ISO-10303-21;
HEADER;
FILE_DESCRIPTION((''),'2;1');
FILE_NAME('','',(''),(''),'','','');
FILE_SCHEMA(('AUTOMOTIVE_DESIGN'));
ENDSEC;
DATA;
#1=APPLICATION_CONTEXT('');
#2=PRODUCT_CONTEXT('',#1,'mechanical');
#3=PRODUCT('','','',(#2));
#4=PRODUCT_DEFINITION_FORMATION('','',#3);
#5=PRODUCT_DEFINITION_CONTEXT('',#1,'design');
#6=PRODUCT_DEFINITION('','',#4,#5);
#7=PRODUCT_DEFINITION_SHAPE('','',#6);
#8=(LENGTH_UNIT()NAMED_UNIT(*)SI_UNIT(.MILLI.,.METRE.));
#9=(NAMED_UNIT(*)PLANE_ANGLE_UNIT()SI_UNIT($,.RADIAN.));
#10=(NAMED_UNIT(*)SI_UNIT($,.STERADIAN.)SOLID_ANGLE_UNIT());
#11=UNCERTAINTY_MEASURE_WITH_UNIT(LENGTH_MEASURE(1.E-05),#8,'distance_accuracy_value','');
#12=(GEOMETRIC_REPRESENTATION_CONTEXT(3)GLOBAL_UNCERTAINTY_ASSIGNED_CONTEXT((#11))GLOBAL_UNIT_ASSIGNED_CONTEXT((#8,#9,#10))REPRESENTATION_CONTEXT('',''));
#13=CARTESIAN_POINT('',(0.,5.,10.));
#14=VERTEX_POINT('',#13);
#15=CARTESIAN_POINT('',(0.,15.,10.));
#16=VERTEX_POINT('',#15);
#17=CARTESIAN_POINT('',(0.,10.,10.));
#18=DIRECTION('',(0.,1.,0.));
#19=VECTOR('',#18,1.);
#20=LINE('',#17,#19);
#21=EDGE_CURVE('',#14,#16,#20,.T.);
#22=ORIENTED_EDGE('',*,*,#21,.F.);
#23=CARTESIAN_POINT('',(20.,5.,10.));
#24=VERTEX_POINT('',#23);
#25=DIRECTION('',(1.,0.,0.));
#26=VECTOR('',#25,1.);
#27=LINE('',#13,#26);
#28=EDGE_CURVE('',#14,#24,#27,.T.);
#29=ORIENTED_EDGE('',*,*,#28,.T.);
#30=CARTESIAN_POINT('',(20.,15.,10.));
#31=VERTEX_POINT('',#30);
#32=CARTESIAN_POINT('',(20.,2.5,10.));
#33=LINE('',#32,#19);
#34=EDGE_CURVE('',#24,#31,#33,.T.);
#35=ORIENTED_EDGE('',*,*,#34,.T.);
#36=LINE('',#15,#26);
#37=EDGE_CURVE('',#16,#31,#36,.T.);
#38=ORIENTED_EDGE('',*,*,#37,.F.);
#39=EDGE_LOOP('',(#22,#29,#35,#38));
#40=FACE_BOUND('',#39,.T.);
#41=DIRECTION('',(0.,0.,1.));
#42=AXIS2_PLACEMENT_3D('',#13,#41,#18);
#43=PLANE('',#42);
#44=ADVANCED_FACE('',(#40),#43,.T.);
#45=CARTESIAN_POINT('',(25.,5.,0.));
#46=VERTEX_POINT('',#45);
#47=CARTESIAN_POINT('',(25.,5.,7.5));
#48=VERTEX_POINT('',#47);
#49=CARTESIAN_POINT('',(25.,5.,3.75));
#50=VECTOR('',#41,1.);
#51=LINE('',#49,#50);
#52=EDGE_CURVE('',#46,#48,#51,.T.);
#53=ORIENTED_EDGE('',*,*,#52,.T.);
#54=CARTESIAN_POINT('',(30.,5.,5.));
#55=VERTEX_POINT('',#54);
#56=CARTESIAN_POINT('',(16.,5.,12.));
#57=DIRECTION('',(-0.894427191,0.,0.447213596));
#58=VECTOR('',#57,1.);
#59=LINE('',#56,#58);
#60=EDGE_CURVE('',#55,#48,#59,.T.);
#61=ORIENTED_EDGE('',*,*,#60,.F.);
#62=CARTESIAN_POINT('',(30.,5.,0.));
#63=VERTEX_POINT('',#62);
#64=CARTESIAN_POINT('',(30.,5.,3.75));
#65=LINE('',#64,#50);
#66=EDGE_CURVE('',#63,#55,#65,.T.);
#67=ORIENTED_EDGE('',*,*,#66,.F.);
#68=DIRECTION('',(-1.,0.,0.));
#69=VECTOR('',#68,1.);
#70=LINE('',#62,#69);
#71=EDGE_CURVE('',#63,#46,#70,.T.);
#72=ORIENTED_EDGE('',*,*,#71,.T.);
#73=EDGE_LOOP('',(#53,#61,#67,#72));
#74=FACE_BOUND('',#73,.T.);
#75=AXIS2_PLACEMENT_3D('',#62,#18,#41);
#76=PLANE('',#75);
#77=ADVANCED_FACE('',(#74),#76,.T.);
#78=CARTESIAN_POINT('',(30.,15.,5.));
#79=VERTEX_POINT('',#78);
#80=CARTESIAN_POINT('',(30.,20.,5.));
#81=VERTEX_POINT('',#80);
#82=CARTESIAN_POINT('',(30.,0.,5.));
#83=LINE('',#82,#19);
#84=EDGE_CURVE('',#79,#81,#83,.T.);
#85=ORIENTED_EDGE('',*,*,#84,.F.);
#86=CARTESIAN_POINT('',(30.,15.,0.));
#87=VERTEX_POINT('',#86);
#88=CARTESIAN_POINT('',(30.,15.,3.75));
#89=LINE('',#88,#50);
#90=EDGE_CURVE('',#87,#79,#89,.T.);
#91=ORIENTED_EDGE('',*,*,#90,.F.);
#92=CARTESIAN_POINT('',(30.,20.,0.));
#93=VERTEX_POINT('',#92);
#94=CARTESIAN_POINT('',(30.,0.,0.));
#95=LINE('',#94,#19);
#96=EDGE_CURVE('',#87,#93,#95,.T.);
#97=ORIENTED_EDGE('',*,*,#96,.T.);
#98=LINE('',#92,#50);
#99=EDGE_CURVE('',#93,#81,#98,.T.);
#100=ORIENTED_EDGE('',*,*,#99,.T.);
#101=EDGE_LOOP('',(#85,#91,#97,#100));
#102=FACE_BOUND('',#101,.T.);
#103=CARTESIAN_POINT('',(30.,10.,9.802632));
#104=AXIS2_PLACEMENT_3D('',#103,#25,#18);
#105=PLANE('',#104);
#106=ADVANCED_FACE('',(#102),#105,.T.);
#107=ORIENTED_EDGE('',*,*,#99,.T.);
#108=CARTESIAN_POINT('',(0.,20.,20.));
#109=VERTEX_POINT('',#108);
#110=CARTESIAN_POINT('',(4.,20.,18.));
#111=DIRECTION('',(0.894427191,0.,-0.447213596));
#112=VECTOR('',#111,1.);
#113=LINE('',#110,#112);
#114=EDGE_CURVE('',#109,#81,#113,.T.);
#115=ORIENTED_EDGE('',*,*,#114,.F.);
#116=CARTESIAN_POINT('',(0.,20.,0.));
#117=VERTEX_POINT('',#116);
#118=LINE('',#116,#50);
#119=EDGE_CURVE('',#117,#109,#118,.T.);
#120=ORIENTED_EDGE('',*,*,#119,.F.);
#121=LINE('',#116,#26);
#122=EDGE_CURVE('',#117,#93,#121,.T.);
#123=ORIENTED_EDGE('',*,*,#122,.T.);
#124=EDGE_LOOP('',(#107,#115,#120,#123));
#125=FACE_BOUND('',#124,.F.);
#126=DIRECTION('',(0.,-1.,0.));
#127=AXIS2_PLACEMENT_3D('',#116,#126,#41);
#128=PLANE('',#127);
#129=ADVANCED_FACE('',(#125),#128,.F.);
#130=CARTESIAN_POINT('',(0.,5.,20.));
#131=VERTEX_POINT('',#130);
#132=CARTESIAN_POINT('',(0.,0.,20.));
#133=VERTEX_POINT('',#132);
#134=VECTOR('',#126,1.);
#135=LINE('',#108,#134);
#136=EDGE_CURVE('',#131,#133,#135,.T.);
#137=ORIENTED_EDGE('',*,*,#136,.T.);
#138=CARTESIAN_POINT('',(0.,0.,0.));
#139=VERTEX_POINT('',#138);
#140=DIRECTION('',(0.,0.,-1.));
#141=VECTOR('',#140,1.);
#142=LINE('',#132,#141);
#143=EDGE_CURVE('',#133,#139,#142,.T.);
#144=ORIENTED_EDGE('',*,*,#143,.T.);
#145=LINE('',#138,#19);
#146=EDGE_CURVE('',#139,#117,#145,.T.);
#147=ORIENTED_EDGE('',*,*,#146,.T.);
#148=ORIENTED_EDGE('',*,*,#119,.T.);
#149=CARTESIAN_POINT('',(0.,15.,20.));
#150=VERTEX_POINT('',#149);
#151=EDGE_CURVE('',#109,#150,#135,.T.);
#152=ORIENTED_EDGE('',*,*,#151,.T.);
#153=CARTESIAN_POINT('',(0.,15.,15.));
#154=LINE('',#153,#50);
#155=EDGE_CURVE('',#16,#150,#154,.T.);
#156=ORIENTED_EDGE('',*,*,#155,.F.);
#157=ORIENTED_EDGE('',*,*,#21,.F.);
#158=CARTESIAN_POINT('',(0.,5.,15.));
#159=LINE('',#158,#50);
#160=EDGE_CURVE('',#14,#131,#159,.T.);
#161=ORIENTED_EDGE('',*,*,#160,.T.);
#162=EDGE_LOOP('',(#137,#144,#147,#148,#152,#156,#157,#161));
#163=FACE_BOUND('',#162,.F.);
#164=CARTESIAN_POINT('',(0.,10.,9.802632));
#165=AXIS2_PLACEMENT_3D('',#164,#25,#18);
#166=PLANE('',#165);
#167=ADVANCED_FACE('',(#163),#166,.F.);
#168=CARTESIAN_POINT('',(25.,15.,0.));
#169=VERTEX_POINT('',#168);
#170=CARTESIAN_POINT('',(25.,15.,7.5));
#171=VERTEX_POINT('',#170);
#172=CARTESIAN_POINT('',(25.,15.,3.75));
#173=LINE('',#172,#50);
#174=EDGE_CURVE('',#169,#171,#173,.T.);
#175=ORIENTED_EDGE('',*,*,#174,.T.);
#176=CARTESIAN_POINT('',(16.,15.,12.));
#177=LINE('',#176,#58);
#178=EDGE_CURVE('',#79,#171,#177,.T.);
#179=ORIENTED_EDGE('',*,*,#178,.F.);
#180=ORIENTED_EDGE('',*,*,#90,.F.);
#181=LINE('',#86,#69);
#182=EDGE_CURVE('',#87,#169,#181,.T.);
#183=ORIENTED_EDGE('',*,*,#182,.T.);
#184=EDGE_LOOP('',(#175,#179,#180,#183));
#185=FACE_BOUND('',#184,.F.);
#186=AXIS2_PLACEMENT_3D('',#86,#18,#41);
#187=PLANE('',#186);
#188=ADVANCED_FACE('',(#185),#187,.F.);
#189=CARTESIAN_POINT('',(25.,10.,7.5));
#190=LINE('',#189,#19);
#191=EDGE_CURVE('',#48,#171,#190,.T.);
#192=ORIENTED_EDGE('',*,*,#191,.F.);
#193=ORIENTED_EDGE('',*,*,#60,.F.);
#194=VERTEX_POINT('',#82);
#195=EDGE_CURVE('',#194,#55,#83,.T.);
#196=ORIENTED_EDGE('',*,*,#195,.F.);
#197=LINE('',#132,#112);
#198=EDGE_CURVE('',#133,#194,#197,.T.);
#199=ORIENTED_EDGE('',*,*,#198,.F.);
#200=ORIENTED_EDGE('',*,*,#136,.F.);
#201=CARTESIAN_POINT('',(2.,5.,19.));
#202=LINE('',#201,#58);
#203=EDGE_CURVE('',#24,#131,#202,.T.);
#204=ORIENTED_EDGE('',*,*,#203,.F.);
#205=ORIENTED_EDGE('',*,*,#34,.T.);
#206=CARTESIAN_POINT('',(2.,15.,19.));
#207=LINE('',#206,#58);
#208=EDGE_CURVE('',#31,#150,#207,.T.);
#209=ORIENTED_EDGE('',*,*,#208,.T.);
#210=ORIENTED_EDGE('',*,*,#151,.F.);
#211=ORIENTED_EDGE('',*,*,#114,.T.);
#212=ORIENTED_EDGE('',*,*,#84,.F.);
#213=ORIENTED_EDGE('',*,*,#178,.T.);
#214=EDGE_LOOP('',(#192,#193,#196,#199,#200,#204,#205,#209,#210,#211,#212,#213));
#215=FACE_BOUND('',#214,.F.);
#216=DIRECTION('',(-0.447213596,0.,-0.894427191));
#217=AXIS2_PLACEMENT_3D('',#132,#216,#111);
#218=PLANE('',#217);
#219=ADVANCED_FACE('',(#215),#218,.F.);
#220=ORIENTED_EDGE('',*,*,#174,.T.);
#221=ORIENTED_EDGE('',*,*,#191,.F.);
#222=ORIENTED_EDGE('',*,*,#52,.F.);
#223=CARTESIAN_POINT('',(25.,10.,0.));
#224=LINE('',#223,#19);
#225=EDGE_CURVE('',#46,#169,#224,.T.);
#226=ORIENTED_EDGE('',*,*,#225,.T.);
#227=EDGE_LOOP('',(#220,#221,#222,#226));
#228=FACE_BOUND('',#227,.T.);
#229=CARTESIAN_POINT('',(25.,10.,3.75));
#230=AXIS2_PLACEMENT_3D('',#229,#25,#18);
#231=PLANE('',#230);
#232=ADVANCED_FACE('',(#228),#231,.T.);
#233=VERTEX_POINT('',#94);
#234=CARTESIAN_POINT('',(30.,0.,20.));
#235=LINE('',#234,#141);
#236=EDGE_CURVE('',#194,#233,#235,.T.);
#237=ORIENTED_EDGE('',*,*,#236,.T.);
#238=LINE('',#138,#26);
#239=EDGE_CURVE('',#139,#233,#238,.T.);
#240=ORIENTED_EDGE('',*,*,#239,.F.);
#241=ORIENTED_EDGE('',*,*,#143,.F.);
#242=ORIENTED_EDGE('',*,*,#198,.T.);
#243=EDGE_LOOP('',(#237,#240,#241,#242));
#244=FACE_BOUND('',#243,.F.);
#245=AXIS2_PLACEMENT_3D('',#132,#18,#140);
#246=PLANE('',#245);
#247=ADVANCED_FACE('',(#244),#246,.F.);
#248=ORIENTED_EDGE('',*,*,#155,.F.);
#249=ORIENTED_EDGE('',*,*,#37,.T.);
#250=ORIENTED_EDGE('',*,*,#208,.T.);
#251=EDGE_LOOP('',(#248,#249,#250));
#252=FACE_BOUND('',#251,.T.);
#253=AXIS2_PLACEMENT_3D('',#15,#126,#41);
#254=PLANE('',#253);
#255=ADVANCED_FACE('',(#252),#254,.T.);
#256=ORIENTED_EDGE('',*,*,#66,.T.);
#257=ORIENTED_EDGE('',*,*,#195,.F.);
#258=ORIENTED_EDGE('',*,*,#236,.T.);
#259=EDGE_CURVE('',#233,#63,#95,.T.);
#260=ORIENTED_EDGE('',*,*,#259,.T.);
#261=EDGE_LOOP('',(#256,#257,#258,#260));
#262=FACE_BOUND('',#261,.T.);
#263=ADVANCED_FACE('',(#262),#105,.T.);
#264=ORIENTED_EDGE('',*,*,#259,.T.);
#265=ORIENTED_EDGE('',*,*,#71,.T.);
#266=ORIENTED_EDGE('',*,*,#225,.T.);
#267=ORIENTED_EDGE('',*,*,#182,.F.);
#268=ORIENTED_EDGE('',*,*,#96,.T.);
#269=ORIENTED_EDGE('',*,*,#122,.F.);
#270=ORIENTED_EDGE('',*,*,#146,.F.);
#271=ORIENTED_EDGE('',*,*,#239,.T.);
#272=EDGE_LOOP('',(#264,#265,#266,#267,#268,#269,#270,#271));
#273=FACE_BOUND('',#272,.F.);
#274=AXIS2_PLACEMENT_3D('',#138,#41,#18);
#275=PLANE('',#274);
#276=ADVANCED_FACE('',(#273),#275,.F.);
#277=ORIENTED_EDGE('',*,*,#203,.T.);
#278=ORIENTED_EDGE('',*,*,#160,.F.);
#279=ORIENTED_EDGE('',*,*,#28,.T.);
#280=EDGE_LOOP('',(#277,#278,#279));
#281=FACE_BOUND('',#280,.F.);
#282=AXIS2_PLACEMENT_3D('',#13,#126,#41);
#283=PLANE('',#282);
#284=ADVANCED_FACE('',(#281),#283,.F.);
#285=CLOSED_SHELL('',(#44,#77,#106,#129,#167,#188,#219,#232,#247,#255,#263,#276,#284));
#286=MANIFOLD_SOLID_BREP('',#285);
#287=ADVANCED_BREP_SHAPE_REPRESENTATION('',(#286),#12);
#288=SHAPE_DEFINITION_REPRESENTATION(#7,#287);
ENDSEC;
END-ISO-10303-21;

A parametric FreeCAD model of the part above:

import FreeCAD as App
import Part
import Sketcher
from FreeCAD import Vector

doc = App.newDocument("Part")
body = doc.addObject("PartDesign::Body", "Body")

# Sketch on YZ plane
sketch1 = body.newObject("Sketcher::SketchObject", "Sketch")
sketch1.AttachmentSupport = (doc.getObject("YZ_Plane"), [""])
sketch1.MapMode = "FlatFace"
sketch1.addGeometry([
    Part.LineSegment(Vector(0, 20, 0), Vector(0, 0, 0)),
    Part.LineSegment(Vector(0, 0, 0), Vector(20, 0, 0)),
    Part.LineSegment(Vector(20, 0, 0), Vector(20, 20, 0)),
    Part.LineSegment(Vector(20, 20, 0), Vector(0, 20, 0)),
], False)
sketch1.addConstraint([
    Sketcher.Constraint("Coincident", 0, 2, 1, 1),
    Sketcher.Constraint("Coincident", 1, 2, 2, 1),
    Sketcher.Constraint("Coincident", 2, 2, 3, 1),
    Sketcher.Constraint("Coincident", 3, 2, 0, 1),
    Sketcher.Constraint("Vertical", 0),
    Sketcher.Constraint("Horizontal", 1),
    Sketcher.Constraint("Vertical", 2),
    Sketcher.Constraint("Horizontal", 3),
    Sketcher.Constraint("Coincident", 0, 2, -1, 1),
    Sketcher.Constraint("Equal", 3, 0),
    Sketcher.Constraint("DistanceX", 1, 1, 1, 2, 20.0),
])
pad1 = body.newObject("PartDesign::Pad", "Pad")
pad1.Profile = sketch1
pad1.Length = 30

# Sketch on YZ plane
sketch2 = body.newObject("Sketcher::SketchObject", "Sketch001")
sketch2.AttachmentSupport = (doc.getObject("YZ_Plane"), [""])
sketch2.MapMode = "FlatFace"
sketch2.AttachmentOffset = App.Placement(Vector(0, 0, 30), App.Rotation())
sketch2.addGeometry([
    Part.LineSegment(Vector(5, 7.5, 0), Vector(5, 0, 0)),
    Part.LineSegment(Vector(5, 0, 0), Vector(15, 0, 0)),
    Part.LineSegment(Vector(15, 0, 0), Vector(15, 7.5, 0)),
    Part.LineSegment(Vector(15, 7.5, 0), Vector(5, 7.5, 0)),
], False)
sketch2.addConstraint([
    Sketcher.Constraint("Coincident", 0, 2, 1, 1),
    Sketcher.Constraint("Coincident", 1, 2, 2, 1),
    Sketcher.Constraint("Coincident", 2, 2, 3, 1),
    Sketcher.Constraint("Coincident", 3, 2, 0, 1),
    Sketcher.Constraint("Vertical", 0),
    Sketcher.Constraint("Horizontal", 1),
    Sketcher.Constraint("Vertical", 2),
    Sketcher.Constraint("Horizontal", 3),
    Sketcher.Constraint("PointOnObject", 0, 2, -1),
    Sketcher.Constraint("DistanceX", 1, 1, 1, 2, 10.0),
    Sketcher.Constraint("DistanceY", 0, 2, 0, 1, 7.5),
    Sketcher.Constraint("DistanceX", -1, 1, 0, 2, 5.0),
])
pocket1 = body.newObject("PartDesign::Pocket", "Pocket")
pocket1.Profile = sketch2
pocket1.Length = 5

# Sketch on XZ plane
sketch3 = body.newObject("Sketcher::SketchObject", "Sketch002")
sketch3.AttachmentSupport = (doc.getObject("XZ_Plane"), [""])
sketch3.MapMode = "FlatFace"
sketch3.addGeometry([
    Part.LineSegment(Vector(0, 20, 0), Vector(30, 5, 0)),
    Part.LineSegment(Vector(30, 5, 0), Vector(30, 20, 0)),
    Part.LineSegment(Vector(30, 20, 0), Vector(0, 20, 0)),
], False)
sketch3.addConstraint([
    Sketcher.Constraint("Coincident", 0, 2, 1, 1),
    Sketcher.Constraint("Coincident", 1, 2, 2, 1),
    Sketcher.Constraint("Coincident", 2, 2, 0, 1),
    Sketcher.Constraint("Vertical", 1),
    Sketcher.Constraint("Horizontal", 2),
    Sketcher.Constraint("PointOnObject", 2, 2, -2),
    Sketcher.Constraint("DistanceX", 2, 2, 2, 1, 30.0),
    Sketcher.Constraint("DistanceY", 1, 1, 1, 2, 15.0),
    Sketcher.Constraint("DistanceY", -1, 1, 0, 2, 5.0),
])
pocket2 = body.newObject("PartDesign::Pocket", "Pocket001")
pocket2.Profile = sketch3
pocket2.Type = "ThroughAll"

# Sketch on YZ plane
sketch4 = body.newObject("Sketcher::SketchObject", "Sketch003")
sketch4.AttachmentSupport = (doc.getObject("YZ_Plane"), [""])
sketch4.MapMode = "FlatFace"
sketch4.addGeometry([
    Part.LineSegment(Vector(5, 20, 0), Vector(5, 10, 0)),
    Part.LineSegment(Vector(5, 10, 0), Vector(15, 10, 0)),
    Part.LineSegment(Vector(15, 10, 0), Vector(15, 20, 0)),
    Part.LineSegment(Vector(15, 20, 0), Vector(5, 20, 0)),
], False)
sketch4.addConstraint([
    Sketcher.Constraint("Coincident", 0, 2, 1, 1),
    Sketcher.Constraint("Coincident", 1, 2, 2, 1),
    Sketcher.Constraint("Coincident", 2, 2, 3, 1),
    Sketcher.Constraint("Coincident", 3, 2, 0, 1),
    Sketcher.Constraint("Vertical", 0),
    Sketcher.Constraint("Horizontal", 1),
    Sketcher.Constraint("Vertical", 2),
    Sketcher.Constraint("Horizontal", 3),
    Sketcher.Constraint("Equal", 3, 0),
    Sketcher.Constraint("DistanceX", 1, 1, 1, 2, 10.0),
    Sketcher.Constraint("DistanceX", -1, 1, 0, 2, 5.0),
    Sketcher.Constraint("DistanceY", -1, 1, 0, 2, 10.0),
])
pocket3 = body.newObject("PartDesign::Pocket", "Pocket002")
pocket3.Profile = sketch4
pocket3.Type = "ThroughAll"
pocket3.Reversed = True

doc.recompute()
